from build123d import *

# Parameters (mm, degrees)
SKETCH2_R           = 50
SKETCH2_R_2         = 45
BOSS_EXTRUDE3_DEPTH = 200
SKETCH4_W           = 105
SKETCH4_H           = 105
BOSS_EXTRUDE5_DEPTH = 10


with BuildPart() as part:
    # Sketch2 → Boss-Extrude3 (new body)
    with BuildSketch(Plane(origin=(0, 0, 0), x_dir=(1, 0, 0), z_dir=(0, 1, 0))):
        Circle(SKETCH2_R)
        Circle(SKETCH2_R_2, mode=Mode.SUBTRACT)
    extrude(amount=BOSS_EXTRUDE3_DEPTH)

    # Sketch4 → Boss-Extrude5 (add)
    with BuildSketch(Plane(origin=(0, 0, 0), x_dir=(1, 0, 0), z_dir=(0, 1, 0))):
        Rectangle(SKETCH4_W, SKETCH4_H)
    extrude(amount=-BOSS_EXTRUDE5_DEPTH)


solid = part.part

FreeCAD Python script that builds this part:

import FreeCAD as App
import Part
import Sketcher

V = App.Vector
Q = App.Units.Quantity

doc = App.newDocument("Part")
body = doc.addObject("PartDesign::Body", "Body")

# Sketch on XZ plane
sketch1 = body.newObject("Sketcher::SketchObject", "Sketch")
sketch1.AttachmentSupport = (doc.getObject("XZ_Plane"), [""])
sketch1.MapMode = "FlatFace"
sketch1.addGeometry(Part.Circle(V(0, 0, 0), V(0, 0, 1), 50), False)
sketch1.addGeometry(Part.Circle(V(0, 0, 0), V(0, 0, 1), 45), False)
sketch1.addConstraint(Sketcher.Constraint("Coincident", 0, 3, -1, 1))
sketch1.addConstraint(Sketcher.Constraint("Coincident", 1, 3, -1, 1))
sketch1.addConstraint(Sketcher.Constraint("Diameter", 0, Q("100 mm")))
sketch1.addConstraint(Sketcher.Constraint("Diameter", 1, Q("90 mm")))
pad1 = body.newObject("PartDesign::Pad", "Pad")
pad1.Profile = sketch1
pad1.Length = 200
pad1.Reversed = True

# Sketch on XZ plane
sketch2 = body.newObject("Sketcher::SketchObject", "Sketch001")
sketch2.AttachmentSupport = (doc.getObject("XZ_Plane"), [""])
sketch2.MapMode = "FlatFace"
sketch2.addGeometry(Part.LineSegment(V(-52.5, -52.5, 0), V(-52.5, 52.5, 0)), False)
sketch2.addGeometry(Part.LineSegment(V(-52.5, 52.5, 0), V(52.5, 52.5, 0)), False)
sketch2.addGeometry(Part.LineSegment(V(52.5, 52.5, 0), V(52.5, -52.5, 0)), False)
sketch2.addGeometry(Part.LineSegment(V(52.5, -52.5, 0), V(-52.5, -52.5, 0)), False)
sketch2.addConstraint(Sketcher.Constraint("Coincident", 0, 2, 1, 1))
sketch2.addConstraint(Sketcher.Constraint("Coincident", 1, 2, 2, 1))
sketch2.addConstraint(Sketcher.Constraint("Coincident", 2, 2, 3, 1))
sketch2.addConstraint(Sketcher.Constraint("Coincident", 3, 2, 0, 1))
sketch2.addConstraint(Sketcher.Constraint("Vertical", 0))
sketch2.addConstraint(Sketcher.Constraint("Horizontal", 1))
sketch2.addConstraint(Sketcher.Constraint("Vertical", 2))
sketch2.addConstraint(Sketcher.Constraint("Horizontal", 3))
sketch2.addConstraint(Sketcher.Constraint("Symmetric", 0, 2, 2, 2, -1, 1))
sketch2.addConstraint(Sketcher.Constraint("Equal", 3, 0))
sketch2.addConstraint(Sketcher.Constraint("DistanceX", 1, 1, 1, 2, Q("105 mm")))
pad2 = body.newObject("PartDesign::Pad", "Pad001")
pad2.Profile = sketch2
pad2.Length = 10

doc.recompute()
